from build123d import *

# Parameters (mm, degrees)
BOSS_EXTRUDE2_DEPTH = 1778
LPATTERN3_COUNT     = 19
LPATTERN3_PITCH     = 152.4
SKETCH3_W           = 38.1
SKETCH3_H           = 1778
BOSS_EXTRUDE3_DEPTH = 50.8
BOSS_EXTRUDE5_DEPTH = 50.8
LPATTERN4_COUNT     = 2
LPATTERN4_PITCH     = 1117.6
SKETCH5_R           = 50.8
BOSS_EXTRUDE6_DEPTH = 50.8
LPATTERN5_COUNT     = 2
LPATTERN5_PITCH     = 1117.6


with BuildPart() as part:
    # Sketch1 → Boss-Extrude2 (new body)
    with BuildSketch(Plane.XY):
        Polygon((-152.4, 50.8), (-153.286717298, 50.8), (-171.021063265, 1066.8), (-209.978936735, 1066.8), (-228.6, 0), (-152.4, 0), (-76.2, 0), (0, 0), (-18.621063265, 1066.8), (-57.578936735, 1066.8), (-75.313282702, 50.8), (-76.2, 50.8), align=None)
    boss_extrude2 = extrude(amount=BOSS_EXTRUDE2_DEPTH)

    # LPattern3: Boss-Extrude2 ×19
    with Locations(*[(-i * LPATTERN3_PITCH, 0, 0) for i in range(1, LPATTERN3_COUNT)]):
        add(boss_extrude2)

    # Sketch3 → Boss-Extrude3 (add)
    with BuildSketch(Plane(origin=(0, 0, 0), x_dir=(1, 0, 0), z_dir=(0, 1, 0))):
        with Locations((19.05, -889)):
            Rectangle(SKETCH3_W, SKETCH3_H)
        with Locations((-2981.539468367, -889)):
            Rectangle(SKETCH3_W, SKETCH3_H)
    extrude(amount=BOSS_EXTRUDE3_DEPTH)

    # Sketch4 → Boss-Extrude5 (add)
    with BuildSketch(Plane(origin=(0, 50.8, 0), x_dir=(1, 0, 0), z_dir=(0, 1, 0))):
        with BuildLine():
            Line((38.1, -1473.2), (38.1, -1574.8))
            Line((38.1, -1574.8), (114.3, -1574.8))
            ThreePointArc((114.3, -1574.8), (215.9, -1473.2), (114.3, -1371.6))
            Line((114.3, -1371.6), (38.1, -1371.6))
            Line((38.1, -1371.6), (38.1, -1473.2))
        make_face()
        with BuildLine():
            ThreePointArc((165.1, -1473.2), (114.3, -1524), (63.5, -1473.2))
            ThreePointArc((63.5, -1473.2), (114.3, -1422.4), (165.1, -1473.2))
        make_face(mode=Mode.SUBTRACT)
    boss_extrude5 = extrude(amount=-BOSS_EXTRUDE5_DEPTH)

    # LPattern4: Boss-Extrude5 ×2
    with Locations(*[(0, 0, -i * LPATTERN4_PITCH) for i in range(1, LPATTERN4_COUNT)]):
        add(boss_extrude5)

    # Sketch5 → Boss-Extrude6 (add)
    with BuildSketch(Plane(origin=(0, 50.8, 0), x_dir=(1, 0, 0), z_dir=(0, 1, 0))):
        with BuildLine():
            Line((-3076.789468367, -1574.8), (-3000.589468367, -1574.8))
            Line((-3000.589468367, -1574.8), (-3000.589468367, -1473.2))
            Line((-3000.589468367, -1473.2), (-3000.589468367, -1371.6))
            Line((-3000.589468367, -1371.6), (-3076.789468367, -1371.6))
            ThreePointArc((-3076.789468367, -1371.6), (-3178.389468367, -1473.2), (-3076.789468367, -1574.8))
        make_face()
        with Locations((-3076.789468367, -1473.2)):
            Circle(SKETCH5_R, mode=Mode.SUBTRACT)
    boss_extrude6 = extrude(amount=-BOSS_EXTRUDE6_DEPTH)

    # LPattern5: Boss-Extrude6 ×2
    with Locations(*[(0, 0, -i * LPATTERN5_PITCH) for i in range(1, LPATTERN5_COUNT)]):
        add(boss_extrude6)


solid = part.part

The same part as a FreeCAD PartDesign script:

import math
import FreeCAD as App
import Part
import Sketcher
from FreeCAD import Vector
Q = App.Units.Quantity

doc = App.newDocument("Part")
params = doc.addObject("Spreadsheet::Sheet", "Params")
for row, (alias, value) in enumerate([
    ("sketch1_width", "9 in"),
    ("pad1_length", "70 in"),
    ("linearpattern_pitch", "6 in"),
    ("sketch2_height", "70 in"),
    ("sketch2_width", "1.5 in"),
    ("pad2_length", "2 in"),
    ("sketch3_diameter", "4 in"),
    ("sketch3_radius", "4 in"),
    ("sketch3_width", "3 in"),
    ("pad3_length", "2 in"),
    ("linearpattern2_pitch", "44 in"),
    ("sketch4_diameter", "4 in"),
    ("sketch4_radius", "4 in"),
    ("sketch4_width", "3 in"),
    ("pad4_length", "2 in"),
    ("linearpattern3_pitch", "44 in"),
], start=1):
    params.set(f"A{row}", alias)
    params.set(f"B{row}", "=" + value)
    params.setAlias(f"B{row}", alias)

body = doc.addObject("PartDesign::Body", "Body")
body.AllowCompound = True

# Sketch on XY plane
sketch1 = body.newObject("Sketcher::SketchObject", "Sketch")
sketch1.AttachmentSupport = (doc.getObject("XY_Plane"), [""])
sketch1.MapMode = "FlatFace"
sketch1.addGeometry([
    Part.LineSegment(Vector(-153.286717, 50.8, 0), Vector(-171.021063, 1066.8, 0)),  # 0
    Part.LineSegment(Vector(-171.021063, 1066.8, 0), Vector(-209.978937, 1066.8, 0)),  # 1
    Part.LineSegment(Vector(-209.978937, 1066.8, 0), Vector(-228.6, 0, 0)),  # 2
    Part.LineSegment(Vector(-228.6, 0, 0), Vector(0, 0, 0)),  # 3
    Part.LineSegment(Vector(0, 0, 0), Vector(-18.621063, 1066.8, 0)),  # 4
    Part.LineSegment(Vector(-18.621063, 1066.8, 0), Vector(-57.578937, 1066.8, 0)),  # 5
    Part.LineSegment(Vector(-57.578937, 1066.8, 0), Vector(-75.313283, 50.8, 0)),  # 6
    Part.LineSegment(Vector(-75.313283, 50.8, 0), Vector(-153.286717, 50.8, 0)),  # 7
], False)
sketch1.addConstraint([
    Sketcher.Constraint("Coincident", 0, 2, 1, 1),
    Sketcher.Constraint("Coincident", 1, 2, 2, 1),
    Sketcher.Constraint("Coincident", 2, 2, 3, 1),
    Sketcher.Constraint("Coincident", 3, 2, 4, 1),
    Sketcher.Constraint("Coincident", 4, 2, 5, 1),
    Sketcher.Constraint("Coincident", 5, 2, 6, 1),
    Sketcher.Constraint("Coincident", 6, 2, 7, 1),
    Sketcher.Constraint("Coincident", 7, 2, 0, 1),
    Sketcher.Constraint("Horizontal", 1),
    Sketcher.Constraint("Horizontal", 3),
    Sketcher.Constraint("Horizontal", 5),
    Sketcher.Constraint("Horizontal", 7),
    Sketcher.Constraint("Coincident", 3, 2, -1, 1),
    Sketcher.Constraint("Parallel", 0, 4),
    Sketcher.Constraint("Parallel", 2, 6),
    Sketcher.Constraint("Horizontal", 1, 2, 4, 2),
    Sketcher.Constraint("Equal", 1, 5),
    Sketcher.Constraint("Equal", 2, 4),
    Sketcher.Constraint("DistanceX", 3, 1, 3, 2, Q("9 in")),
    Sketcher.Constraint("DistanceY", -1, 1, 0, 2, Q("42 in")),
    Sketcher.Constraint("DistanceY", -1, 1, 6, 2, Q("2 in")),
    Sketcher.Constraint("Angle", 0, Q("91 deg")),
    Sketcher.Constraint("DistanceX", 0, 2, 4, 2, Q("6 in")),
])
sketch1.setExpression("Constraints[18]", "Params.sketch1_width")
pad1 = body.newObject("PartDesign::Pad", "Pad")
pad1.Profile = sketch1
pad1.setExpression("Length", "Params.pad1_length")
doc.recompute()

linearpattern = body.newObject("PartDesign::LinearPattern", "LinearPattern")
linearpattern.Originals = [pad1]
linearpattern.Direction = (doc.getObject("X_Axis"), [""])
linearpattern.Mode = "offset"
linearpattern.setExpression("Offset", "Params.linearpattern_pitch")
linearpattern.Occurrences = 19
linearpattern.Reversed = True
body.Tip = linearpattern

# Sketch on XZ plane
sketch2 = body.newObject("Sketcher::SketchObject", "Sketch001")
sketch2.AttachmentSupport = (doc.getObject("XZ_Plane"), [""])
sketch2.MapMode = "FlatFace"
sketch2.addGeometry([
    Part.LineSegment(Vector(0, 0, 0), Vector(0, 1778, 0)),  # 0
    Part.LineSegment(Vector(0, 1778, 0), Vector(38.1, 1778, 0)),  # 1
    Part.LineSegment(Vector(38.1, 1778, 0), Vector(38.1, 0, 0)),  # 2
    Part.LineSegment(Vector(38.1, 0, 0), Vector(0, 0, 0)),  # 3
    Part.LineSegment(Vector(-3000.589468, 0, 0), Vector(-3000.589468, 1778, 0)),  # 4
    Part.LineSegment(Vector(-3000.589468, 1778, 0), Vector(-2962.489468, 1778, 0)),  # 5
    Part.LineSegment(Vector(-2962.489468, 1778, 0), Vector(-2962.489468, 0, 0)),  # 6
    Part.LineSegment(Vector(-2962.489468, 0, 0), Vector(-3000.589468, 0, 0)),  # 7
], False)
sketch2.addConstraint([
    Sketcher.Constraint("Coincident", 0, 2, 1, 1),
    Sketcher.Constraint("Coincident", 1, 2, 2, 1),
    Sketcher.Constraint("Coincident", 2, 2, 3, 1),
    Sketcher.Constraint("Coincident", 3, 2, 0, 1),
    Sketcher.Constraint("Coincident", 4, 2, 5, 1),
    Sketcher.Constraint("Coincident", 5, 2, 6, 1),
    Sketcher.Constraint("Coincident", 6, 2, 7, 1),
    Sketcher.Constraint("Coincident", 7, 2, 4, 1),
    Sketcher.Constraint("Vertical", 0),
    Sketcher.Constraint("Horizontal", 1),
    Sketcher.Constraint("Vertical", 2),
    Sketcher.Constraint("Horizontal", 3),
    Sketcher.Constraint("Vertical", 4),
    Sketcher.Constraint("Horizontal", 5),
    Sketcher.Constraint("Vertical", 6),
    Sketcher.Constraint("Horizontal", 7),
    Sketcher.Constraint("Coincident", 3, 2, -1, 1),
    Sketcher.Constraint("PointOnObject", 6, 2, -1),
    Sketcher.Constraint("Horizontal", 1, 2, 4, 2),
    Sketcher.Constraint("Equal", 3, 5),
    Sketcher.Constraint("DistanceY", 0, 1, 0, 2, Q("70 in")),
    Sketcher.Constraint("DistanceX", 1, 1, 1, 2, Q("1.5 in")),
    Sketcher.Constraint("DistanceX", 4, 2, -1, 1, 3000.589468),
])
sketch2.setExpression("Constraints[20]", "Params.sketch2_height")
sketch2.setExpression("Constraints[21]", "Params.sketch2_width")
pad2 = body.newObject("PartDesign::Pad", "Pad001")
pad2.Profile = sketch2
pad2.setExpression("Length", "Params.pad2_length")
pad2.Reversed = True

# Sketch on XZ plane
sketch3 = body.newObject("Sketcher::SketchObject", "Sketch002")
sketch3.AttachmentSupport = (doc.getObject("XZ_Plane"), [""])
sketch3.MapMode = "FlatFace"
sketch3.AttachmentOffset = App.Placement(Vector(0, 0, -2 * 25.4), App.Rotation())
sketch3.addGeometry([
    Part.LineSegment(Vector(38.1, 1574.8, 0), Vector(114.3, 1574.8, 0)),  # 0
    Part.ArcOfCircle(Part.Circle(Vector(114.3, 1473.2, 0), Vector(0, 0, 1), 101.6), math.radians(-90), math.radians(90)),  # 1
    Part.LineSegment(Vector(114.3, 1371.6, 0), Vector(38.1, 1371.6, 0)),  # 2
    Part.LineSegment(Vector(38.1, 1371.6, 0), Vector(38.1, 1574.8, 0)),  # 3
    Part.Circle(Vector(114.3, 1473.2, 0), Vector(0, 0, 1), 50.8),  # 4
], False)
sketch3.addConstraint([
    Sketcher.Constraint("Tangent", 0, 2, 1, 2),
    Sketcher.Constraint("Tangent", 1, 1, 2, 1),
    Sketcher.Constraint("Coincident", 2, 2, 3, 1),
    Sketcher.Constraint("Coincident", 3, 2, 0, 1),
    Sketcher.Constraint("Horizontal", 0),
    Sketcher.Constraint("Horizontal", 2),
    Sketcher.Constraint("Vertical", 3),
    Sketcher.Constraint("Coincident", 4, 3, 1, 3),
    Sketcher.Constraint("Diameter", 4, Q("4 in")),
    Sketcher.Constraint("Radius", 1, Q("4 in")),
    Sketcher.Constraint("DistanceX", 0, 1, 0, 2, Q("3 in")),
    Sketcher.Constraint("DistanceY", -1, 1, 1, 3, Q("58 in")),
    Sketcher.Constraint("DistanceX", -1, 1, 1, 3, Q("4.5 in")),
])
sketch3.setExpression("Constraints[8]", "Params.sketch3_diameter")
sketch3.setExpression("Constraints[9]", "Params.sketch3_radius")
sketch3.setExpression("Constraints[10]", "Params.sketch3_width")
pad3 = body.newObject("PartDesign::Pad", "Pad002")
pad3.Profile = sketch3
pad3.setExpression("Length", "Params.pad3_length")
doc.recompute()

linearpattern2 = body.newObject("PartDesign::LinearPattern", "LinearPattern001")
linearpattern2.Originals = [pad3]
linearpattern2.Direction = (doc.getObject("Z_Axis"), [""])
linearpattern2.Mode = "offset"
linearpattern2.setExpression("Offset", "Params.linearpattern2_pitch")
linearpattern2.Occurrences = 2
linearpattern2.Reversed = True
body.Tip = linearpattern2

# Sketch on XZ plane
sketch4 = body.newObject("Sketcher::SketchObject", "Sketch003")
sketch4.AttachmentSupport = (doc.getObject("XZ_Plane"), [""])
sketch4.MapMode = "FlatFace"
sketch4.AttachmentOffset = App.Placement(Vector(0, 0, -2 * 25.4), App.Rotation())
sketch4.addGeometry([
    Part.LineSegment(Vector(-3076.789468, 1574.8, 0), Vector(-3000.589468, 1574.8, 0)),  # 0
    Part.LineSegment(Vector(-3000.589468, 1574.8, 0), Vector(-3000.589468, 1371.6, 0)),  # 1
    Part.LineSegment(Vector(-3000.589468, 1371.6, 0), Vector(-3076.789468, 1371.6, 0)),  # 2
    Part.ArcOfCircle(Part.Circle(Vector(-3076.789468, 1473.2, 0), Vector(0, 0, 1), 101.6), math.radians(90), math.radians(270)),  # 3
    Part.Circle(Vector(-3076.789468, 1473.2, 0), Vector(0, 0, 1), 50.8),  # 4
], False)
sketch4.addConstraint([
    Sketcher.Constraint("Coincident", 0, 2, 1, 1),
    Sketcher.Constraint("Coincident", 1, 2, 2, 1),
    Sketcher.Constraint("Tangent", 2, 2, 3, 2),
    Sketcher.Constraint("Tangent", 3, 1, 0, 1),
    Sketcher.Constraint("Horizontal", 0),
    Sketcher.Constraint("Vertical", 1),
    Sketcher.Constraint("Horizontal", 2),
    Sketcher.Constraint("Coincident", 4, 3, 3, 3),
    Sketcher.Constraint("Diameter", 4, Q("4 in")),
    Sketcher.Constraint("Radius", 3, Q("4 in")),
    Sketcher.Constraint("DistanceX", 0, 1, 0, 2, Q("3 in")),
    Sketcher.Constraint("DistanceY", -1, 1, 3, 3, Q("58 in")),
    Sketcher.Constraint("DistanceX", 3, 3, -1, 1, 3076.789468),
])
sketch4.setExpression("Constraints[8]", "Params.sketch4_diameter")
sketch4.setExpression("Constraints[9]", "Params.sketch4_radius")
sketch4.setExpression("Constraints[10]", "Params.sketch4_width")
pad4 = body.newObject("PartDesign::Pad", "Pad003")
pad4.Profile = sketch4
pad4.setExpression("Length", "Params.pad4_length")
doc.recompute()

linearpattern3 = body.newObject("PartDesign::LinearPattern", "LinearPattern002")
linearpattern3.Originals = [pad4]
linearpattern3.Direction = (doc.getObject("Z_Axis"), [""])
linearpattern3.Mode = "offset"
linearpattern3.setExpression("Offset", "Params.linearpattern3_pitch")
linearpattern3.Occurrences = 2
linearpattern3.Reversed = True
body.Tip = linearpattern3

doc.recompute()
